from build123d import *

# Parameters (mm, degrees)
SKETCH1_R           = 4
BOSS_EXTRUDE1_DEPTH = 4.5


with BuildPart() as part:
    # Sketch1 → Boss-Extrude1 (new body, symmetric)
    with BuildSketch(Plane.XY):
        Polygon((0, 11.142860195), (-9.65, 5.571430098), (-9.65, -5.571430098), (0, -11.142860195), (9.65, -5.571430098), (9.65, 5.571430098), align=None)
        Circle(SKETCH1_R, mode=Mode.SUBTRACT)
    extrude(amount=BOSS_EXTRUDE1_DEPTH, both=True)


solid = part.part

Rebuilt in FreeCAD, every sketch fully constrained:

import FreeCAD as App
import Part
import Sketcher
Q = App.Units.Quantity

doc = App.newDocument("Part")
params = doc.addObject("Spreadsheet::Sheet", "Params")
for row, (alias, value) in enumerate([
    ("sketch1_diameter", "8 mm"),
    ("pad1_length", "9 mm"),
], start=1):
    params.set(f"A{row}", alias)
    params.set(f"B{row}", "=" + value)
    params.setAlias(f"B{row}", alias)

body = doc.addObject("PartDesign::Body", "Body")

sketch1 = body.newObject("Sketcher::SketchObject", "Sketch")
sketch1.AttachmentSupport = (doc.getObject("XY_Plane"), [""])
sketch1.MapMode = "FlatFace"
sketch1.addGeometry([
    Part.LineSegment(App.Vector(0, 11.14286, 0), App.Vector(-9.65, 5.57143, 0)),
    Part.LineSegment(App.Vector(-9.65, 5.57143, 0), App.Vector(-9.65, -5.57143, 0)),
    Part.LineSegment(App.Vector(-9.65, -5.57143, 0), App.Vector(0, -11.14286, 0)),
    Part.LineSegment(App.Vector(0, -11.14286, 0), App.Vector(9.65, -5.57143, 0)),
    Part.LineSegment(App.Vector(9.65, -5.57143, 0), App.Vector(9.65, 5.57143, 0)),
    Part.LineSegment(App.Vector(9.65, 5.57143, 0), App.Vector(0, 11.14286, 0)),
    Part.Circle(App.Vector(0, 0, 0), App.Vector(0, 0, 1), 4),
], False)
sketch1.addConstraint([
    Sketcher.Constraint("Coincident", 0, 2, 1, 1),
    Sketcher.Constraint("Coincident", 1, 2, 2, 1),
    Sketcher.Constraint("Coincident", 2, 2, 3, 1),
    Sketcher.Constraint("Coincident", 3, 2, 4, 1),
    Sketcher.Constraint("Coincident", 4, 2, 5, 1),
    Sketcher.Constraint("Coincident", 5, 2, 0, 1),
    Sketcher.Constraint("Vertical", 1),
    Sketcher.Constraint("Vertical", 4),
    Sketcher.Constraint("Coincident", 6, 3, -1, 1),
    Sketcher.Constraint("Symmetric", 0, 2, 3, 2, -1, 1),
    Sketcher.Constraint("Symmetric", 2, 2, 5, 2, -1, 1),
    Sketcher.Constraint("PointOnObject", 2, 2, -2),
    Sketcher.Constraint("Parallel", 2, 5),
    Sketcher.Constraint("Horizontal", 1, 2, 3, 2),
    Sketcher.Constraint("Diameter", 6, Q("8 mm")),
    Sketcher.Constraint("Angle", 0, Q("-150 deg")),
    Sketcher.Constraint("DistanceX", 1, 2, 3, 2, Q("19.3 mm")),
    Sketcher.Constraint("DistanceY", 1, 2, 1, 1, Q("11.14286 mm")),
])
sketch1.setExpression("Constraints[14]", "Params.sketch1_diameter")
pad1 = body.newObject("PartDesign::Pad", "Pad")
pad1.Profile = sketch1
pad1.setExpression("Length", "Params.pad1_length")
pad1.Midplane = True

doc.recompute()
